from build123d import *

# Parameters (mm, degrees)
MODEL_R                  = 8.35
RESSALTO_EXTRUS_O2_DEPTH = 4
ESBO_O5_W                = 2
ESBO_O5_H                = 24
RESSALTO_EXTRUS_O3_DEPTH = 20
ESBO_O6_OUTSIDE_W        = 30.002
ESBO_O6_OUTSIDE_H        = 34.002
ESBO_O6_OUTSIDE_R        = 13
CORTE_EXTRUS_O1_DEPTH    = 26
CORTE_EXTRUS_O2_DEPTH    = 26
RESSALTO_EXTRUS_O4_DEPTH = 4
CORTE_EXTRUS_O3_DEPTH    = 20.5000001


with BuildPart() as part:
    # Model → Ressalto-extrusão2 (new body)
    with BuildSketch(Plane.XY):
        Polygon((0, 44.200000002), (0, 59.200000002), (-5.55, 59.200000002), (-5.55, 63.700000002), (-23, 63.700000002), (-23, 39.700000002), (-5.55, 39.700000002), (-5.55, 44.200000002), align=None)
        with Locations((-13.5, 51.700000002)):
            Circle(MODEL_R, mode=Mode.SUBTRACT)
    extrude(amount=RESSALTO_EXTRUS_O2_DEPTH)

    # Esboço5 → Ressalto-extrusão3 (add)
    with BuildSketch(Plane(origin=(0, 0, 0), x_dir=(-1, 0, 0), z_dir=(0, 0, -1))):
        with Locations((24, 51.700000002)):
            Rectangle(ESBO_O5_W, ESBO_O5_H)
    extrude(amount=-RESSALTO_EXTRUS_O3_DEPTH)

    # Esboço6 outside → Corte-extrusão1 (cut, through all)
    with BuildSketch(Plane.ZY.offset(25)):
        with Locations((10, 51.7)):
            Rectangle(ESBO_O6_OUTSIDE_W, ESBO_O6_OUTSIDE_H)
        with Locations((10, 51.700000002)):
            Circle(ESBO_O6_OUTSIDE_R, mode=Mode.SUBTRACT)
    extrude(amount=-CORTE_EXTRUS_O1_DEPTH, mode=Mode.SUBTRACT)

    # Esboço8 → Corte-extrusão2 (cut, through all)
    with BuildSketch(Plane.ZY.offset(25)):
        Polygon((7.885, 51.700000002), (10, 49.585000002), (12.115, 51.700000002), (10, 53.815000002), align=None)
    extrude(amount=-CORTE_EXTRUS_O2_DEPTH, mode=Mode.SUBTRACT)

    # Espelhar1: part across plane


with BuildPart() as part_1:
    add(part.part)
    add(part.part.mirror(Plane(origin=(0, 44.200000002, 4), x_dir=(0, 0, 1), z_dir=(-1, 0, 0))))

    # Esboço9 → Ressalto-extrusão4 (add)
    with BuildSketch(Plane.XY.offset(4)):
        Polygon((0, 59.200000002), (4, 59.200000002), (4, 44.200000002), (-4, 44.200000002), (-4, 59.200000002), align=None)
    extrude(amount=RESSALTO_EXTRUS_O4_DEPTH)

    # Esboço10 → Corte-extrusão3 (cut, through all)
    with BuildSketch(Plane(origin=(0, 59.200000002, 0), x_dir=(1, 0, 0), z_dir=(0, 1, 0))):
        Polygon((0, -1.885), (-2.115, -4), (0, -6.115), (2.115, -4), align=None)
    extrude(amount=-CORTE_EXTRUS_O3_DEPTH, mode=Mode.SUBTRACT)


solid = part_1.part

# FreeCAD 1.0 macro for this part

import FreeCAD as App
import Part
import Sketcher
from FreeCAD import Vector

doc = App.newDocument("Part")
body = doc.addObject("PartDesign::Body", "Body")

# Sketch on XY plane
sketch1 = body.newObject("Sketcher::SketchObject", "Sketch")
sketch1.AttachmentSupport = (doc.getObject("XY_Plane"), [""])
sketch1.MapMode = "FlatFace"
sketch1.addGeometry([
    Part.LineSegment(Vector(0, 44.2, 0), Vector(0, 59.2, 0)),  # 0
    Part.LineSegment(Vector(0, 59.2, 0), Vector(-5.55, 59.2, 0)),  # 1
    Part.LineSegment(Vector(-5.55, 59.2, 0), Vector(-5.55, 63.7, 0)),  # 2
    Part.LineSegment(Vector(-5.55, 63.7, 0), Vector(-23, 63.7, 0)),  # 3
    Part.LineSegment(Vector(-23, 63.7, 0), Vector(-23, 39.7, 0)),  # 4
    Part.LineSegment(Vector(-23, 39.7, 0), Vector(-5.55, 39.7, 0)),  # 5
    Part.LineSegment(Vector(-5.55, 39.7, 0), Vector(-5.55, 44.2, 0)),  # 6
    Part.LineSegment(Vector(-5.55, 44.2, 0), Vector(0, 44.2, 0)),  # 7
    Part.Circle(Vector(-13.5, 51.7, 0), Vector(0, 0, 1), 8.35),  # 8
], False)
sketch1.addConstraint([
    Sketcher.Constraint("Coincident", 0, 2, 1, 1),
    Sketcher.Constraint("Coincident", 1, 2, 2, 1),
    Sketcher.Constraint("Coincident", 2, 2, 3, 1),
    Sketcher.Constraint("Coincident", 3, 2, 4, 1),
    Sketcher.Constraint("Coincident", 4, 2, 5, 1),
    Sketcher.Constraint("Coincident", 5, 2, 6, 1),
    Sketcher.Constraint("Coincident", 6, 2, 7, 1),
    Sketcher.Constraint("Coincident", 7, 2, 0, 1),
    Sketcher.Constraint("Vertical", 0),
    Sketcher.Constraint("Horizontal", 1),
    Sketcher.Constraint("Vertical", 2),
    Sketcher.Constraint("Horizontal", 3),
    Sketcher.Constraint("Vertical", 4),
    Sketcher.Constraint("Horizontal", 5),
    Sketcher.Constraint("Vertical", 6),
    Sketcher.Constraint("Horizontal", 7),
    Sketcher.Constraint("PointOnObject", 0, 2, -2),
    Sketcher.Constraint("Vertical", 2, 2, 5, 2),
    Sketcher.Constraint("Equal", 2, 6),
    Sketcher.Constraint("Diameter", 8, 16.7),
    Sketcher.Constraint("DistanceY", 0, 1, 0, 2, 15.0),
    Sketcher.Constraint("DistanceY", 4, 2, 4, 1, 24.0),
    Sketcher.Constraint("DistanceX", 3, 2, -1, 1, 23.0),
    Sketcher.Constraint("DistanceY", 8, 3, 2, 2, 12.0),
    Sketcher.Constraint("DistanceX", 1, 2, 1, 1, 5.55),
    Sketcher.Constraint("DistanceX", 8, 3, -1, 1, 13.5),
    Sketcher.Constraint("DistanceY", -1, 1, 8, 3, 51.7),
])
pad1 = body.newObject("PartDesign::Pad", "Pad")
pad1.Profile = sketch1
pad1.Length = 4

# Sketch on XY plane
sketch2 = body.newObject("Sketcher::SketchObject", "Sketch001")
sketch2.AttachmentSupport = (doc.getObject("XY_Plane"), [""])
sketch2.MapMode = "FlatFace"
sketch2.addGeometry([
    Part.LineSegment(Vector(-23, 63.7, 0), Vector(-23, 39.7, 0)),
    Part.LineSegment(Vector(-23, 39.7, 0), Vector(-25, 39.7, 0)),
    Part.LineSegment(Vector(-25, 39.7, 0), Vector(-25, 63.7, 0)),
    Part.LineSegment(Vector(-25, 63.7, 0), Vector(-23, 63.7, 0)),
], False)
sketch2.addConstraint([
    Sketcher.Constraint("Coincident", 0, 2, 1, 1),
    Sketcher.Constraint("Coincident", 1, 2, 2, 1),
    Sketcher.Constraint("Coincident", 2, 2, 3, 1),
    Sketcher.Constraint("Coincident", 3, 2, 0, 1),
    Sketcher.Constraint("Vertical", 0),
    Sketcher.Constraint("Horizontal", 1),
    Sketcher.Constraint("Vertical", 2),
    Sketcher.Constraint("Horizontal", 3),
    Sketcher.Constraint("DistanceX", 1, 2, 1, 1, 2.0),
    Sketcher.Constraint("DistanceY", 0, 2, 0, 1, 24.0),
    Sketcher.Constraint("DistanceX", 0, 2, -1, 1, 23.0),
    Sketcher.Constraint("DistanceY", -1, 1, 0, 2, 39.7),
])
pad2 = body.newObject("PartDesign::Pad", "Pad001")
pad2.Profile = sketch2
pad2.Length = 20

# Sketch on YZ plane
sketch3 = body.newObject("Sketcher::SketchObject", "Sketch002")
sketch3.AttachmentSupport = (doc.getObject("YZ_Plane"), [""])
sketch3.MapMode = "FlatFace"
sketch3.AttachmentOffset = App.Placement(Vector(0, 0, -25), App.Rotation())
sketch3.addGeometry([
    Part.LineSegment(Vector(68.701, -5.001, 0), Vector(34.699, -5.001, 0)),  # 0
    Part.LineSegment(Vector(34.699, -5.001, 0), Vector(34.699, 25.001, 0)),  # 1
    Part.LineSegment(Vector(34.699, 25.001, 0), Vector(68.701, 25.001, 0)),  # 2
    Part.LineSegment(Vector(68.701, 25.001, 0), Vector(68.701, -5.001, 0)),  # 3
    Part.Circle(Vector(51.7, 10, 0), Vector(0, 0, 1), 13),  # 4
], False)
sketch3.addConstraint([
    Sketcher.Constraint("Coincident", 0, 2, 1, 1),
    Sketcher.Constraint("Coincident", 1, 2, 2, 1),
    Sketcher.Constraint("Coincident", 2, 2, 3, 1),
    Sketcher.Constraint("Coincident", 3, 2, 0, 1),
    Sketcher.Constraint("Horizontal", 0),
    Sketcher.Constraint("Vertical", 1),
    Sketcher.Constraint("Horizontal", 2),
    Sketcher.Constraint("Vertical", 3),
    Sketcher.Constraint("Diameter", 4, 26.0),
    Sketcher.Constraint("DistanceY", -1, 1, 4, 3, 10.0),
    Sketcher.Constraint("DistanceX", -1, 1, 4, 3, 51.7),
    Sketcher.Constraint("DistanceX", 0, 2, 0, 1, 34.002),
    Sketcher.Constraint("DistanceY", 1, 1, 1, 2, 30.002),
    Sketcher.Constraint("DistanceX", -1, 1, 0, 2, 34.699),
    Sketcher.Constraint("DistanceY", 0, 2, -1, 1, 5.001),
])
pocket1 = body.newObject("PartDesign::Pocket", "Pocket")
pocket1.Profile = sketch3
pocket1.Type = "ThroughAll"
pocket1.Reversed = True

# Sketch on YZ plane
sketch4 = body.newObject("Sketcher::SketchObject", "Sketch003")
sketch4.AttachmentSupport = (doc.getObject("YZ_Plane"), [""])
sketch4.MapMode = "FlatFace"
sketch4.AttachmentOffset = App.Placement(Vector(0, 0, -25), App.Rotation())
sketch4.addGeometry([
    Part.LineSegment(Vector(51.7, 7.885, 0), Vector(49.585, 10, 0)),
    Part.LineSegment(Vector(49.585, 10, 0), Vector(51.7, 12.115, 0)),
    Part.LineSegment(Vector(51.7, 12.115, 0), Vector(53.815, 10, 0)),
    Part.LineSegment(Vector(53.815, 10, 0), Vector(51.7, 7.885, 0)),
], False)
sketch4.addConstraint([
    Sketcher.Constraint("Coincident", 0, 2, 1, 1),
    Sketcher.Constraint("Coincident", 1, 2, 2, 1),
    Sketcher.Constraint("Coincident", 2, 2, 3, 1),
    Sketcher.Constraint("Coincident", 3, 2, 0, 1),
    Sketcher.Constraint("Perpendicular", 0, 1),
    Sketcher.Constraint("Perpendicular", 1, 2),
    Sketcher.Constraint("Perpendicular", 2, 3),
    Sketcher.Constraint("Horizontal", 0, 2, 2, 2),
    Sketcher.Constraint("Vertical", 1, 2, 3, 2),
    Sketcher.Constraint("DistanceY", -1, 1, 0, 2, 10.0),
    Sketcher.Constraint("DistanceX", -1, 1, 1, 2, 51.7),
    Sketcher.Constraint("DistanceX", 0, 2, 2, 2, 4.23),
])
pocket2 = body.newObject("PartDesign::Pocket", "Pocket001")
pocket2.Profile = sketch4
pocket2.Type = "ThroughAll"
pocket2.Reversed = True
body2 = doc.addObject("PartDesign::Body", "Body001")
doc.recompute()

body2.BaseFeature = body
doc.recompute()

mirroring = doc.addObject("Part::Mirroring", "Mirroring")
mirroring.Source = body
mirroring.Base = Vector(0, 44.2, 4)
mirroring.Normal = Vector(-1, 0, 0)
body3 = doc.addObject("PartDesign::Body", "Body002")
body3.BaseFeature = mirroring
boolean = body2.newObject("PartDesign::Boolean", "Boolean")
boolean.Type = "Fuse"
boolean.addObjects([body3])
doc.recompute()

# Sketch on XY plane
sketch5 = body2.newObject("Sketcher::SketchObject", "Sketch004")
sketch5.AttachmentSupport = (doc.getObject("XY_Plane001"), [""])
sketch5.MapMode = "FlatFace"
sketch5.AttachmentOffset = App.Placement(Vector(0, 0, 4), App.Rotation())
sketch5.addGeometry([
    Part.LineSegment(Vector(4, 59.2, 0), Vector(-4, 59.2, 0)),
    Part.LineSegment(Vector(-4, 59.2, 0), Vector(-4, 44.2, 0)),
    Part.LineSegment(Vector(-4, 44.2, 0), Vector(4, 44.2, 0)),
    Part.LineSegment(Vector(4, 44.2, 0), Vector(4, 59.2, 0)),
], False)
sketch5.addConstraint([
    Sketcher.Constraint("Coincident", 0, 2, 1, 1),
    Sketcher.Constraint("Coincident", 1, 2, 2, 1),
    Sketcher.Constraint("Coincident", 2, 2, 3, 1),
    Sketcher.Constraint("Coincident", 3, 2, 0, 1),
    Sketcher.Constraint("Horizontal", 0),
    Sketcher.Constraint("Vertical", 1),
    Sketcher.Constraint("Horizontal", 2),
    Sketcher.Constraint("Vertical", 3),
    Sketcher.Constraint("DistanceX", 0, 2, 0, 1, 8.0),
    Sketcher.Constraint("DistanceY", 1, 2, 1, 1, 15.0),
    Sketcher.Constraint("DistanceX", 0, 2, -1, 1, 4.0),
    Sketcher.Constraint("DistanceY", -1, 1, 0, 2, 59.2),
])
pad3 = body2.newObject("PartDesign::Pad", "Pad002")
pad3.Profile = sketch5
pad3.Length = 4

# Sketch on XZ plane
sketch6 = body2.newObject("Sketcher::SketchObject", "Sketch005")
sketch6.AttachmentSupport = (doc.getObject("XZ_Plane001"), [""])
sketch6.MapMode = "FlatFace"
sketch6.AttachmentOffset = App.Placement(Vector(0, 0, -59.2), App.Rotation())
sketch6.addGeometry([
    Part.LineSegment(Vector(0, 1.885, 0), Vector(-2.115, 4, 0)),
    Part.LineSegment(Vector(-2.115, 4, 0), Vector(0, 6.115, 0)),
    Part.LineSegment(Vector(0, 6.115, 0), Vector(2.115, 4, 0)),
    Part.LineSegment(Vector(2.115, 4, 0), Vector(0, 1.885, 0)),
], False)
sketch6.addConstraint([
    Sketcher.Constraint("Coincident", 0, 2, 1, 1),
    Sketcher.Constraint("Coincident", 1, 2, 2, 1),
    Sketcher.Constraint("Coincident", 2, 2, 3, 1),
    Sketcher.Constraint("Coincident", 3, 2, 0, 1),
    Sketcher.Constraint("Symmetric", 0, 2, 2, 2, -2),
    Sketcher.Constraint("PointOnObject", 1, 2, -2),
    Sketcher.Constraint("PointOnObject", 3, 2, -2),
    Sketcher.Constraint("Perpendicular", 0, 1),
    Sketcher.Constraint("Perpendicular", 1, 2),
    Sketcher.Constraint("DistanceY", -1, 1, 0, 2, 4.0),
    Sketcher.Constraint("DistanceX", 0, 2, 2, 2, 4.23),
])
pocket3 = body2.newObject("PartDesign::Pocket", "Pocket002")
pocket3.Profile = sketch6
pocket3.Type = "ThroughAll"
pocket3.Reversed = True
mirroring.Visibility = False

doc.recompute()
